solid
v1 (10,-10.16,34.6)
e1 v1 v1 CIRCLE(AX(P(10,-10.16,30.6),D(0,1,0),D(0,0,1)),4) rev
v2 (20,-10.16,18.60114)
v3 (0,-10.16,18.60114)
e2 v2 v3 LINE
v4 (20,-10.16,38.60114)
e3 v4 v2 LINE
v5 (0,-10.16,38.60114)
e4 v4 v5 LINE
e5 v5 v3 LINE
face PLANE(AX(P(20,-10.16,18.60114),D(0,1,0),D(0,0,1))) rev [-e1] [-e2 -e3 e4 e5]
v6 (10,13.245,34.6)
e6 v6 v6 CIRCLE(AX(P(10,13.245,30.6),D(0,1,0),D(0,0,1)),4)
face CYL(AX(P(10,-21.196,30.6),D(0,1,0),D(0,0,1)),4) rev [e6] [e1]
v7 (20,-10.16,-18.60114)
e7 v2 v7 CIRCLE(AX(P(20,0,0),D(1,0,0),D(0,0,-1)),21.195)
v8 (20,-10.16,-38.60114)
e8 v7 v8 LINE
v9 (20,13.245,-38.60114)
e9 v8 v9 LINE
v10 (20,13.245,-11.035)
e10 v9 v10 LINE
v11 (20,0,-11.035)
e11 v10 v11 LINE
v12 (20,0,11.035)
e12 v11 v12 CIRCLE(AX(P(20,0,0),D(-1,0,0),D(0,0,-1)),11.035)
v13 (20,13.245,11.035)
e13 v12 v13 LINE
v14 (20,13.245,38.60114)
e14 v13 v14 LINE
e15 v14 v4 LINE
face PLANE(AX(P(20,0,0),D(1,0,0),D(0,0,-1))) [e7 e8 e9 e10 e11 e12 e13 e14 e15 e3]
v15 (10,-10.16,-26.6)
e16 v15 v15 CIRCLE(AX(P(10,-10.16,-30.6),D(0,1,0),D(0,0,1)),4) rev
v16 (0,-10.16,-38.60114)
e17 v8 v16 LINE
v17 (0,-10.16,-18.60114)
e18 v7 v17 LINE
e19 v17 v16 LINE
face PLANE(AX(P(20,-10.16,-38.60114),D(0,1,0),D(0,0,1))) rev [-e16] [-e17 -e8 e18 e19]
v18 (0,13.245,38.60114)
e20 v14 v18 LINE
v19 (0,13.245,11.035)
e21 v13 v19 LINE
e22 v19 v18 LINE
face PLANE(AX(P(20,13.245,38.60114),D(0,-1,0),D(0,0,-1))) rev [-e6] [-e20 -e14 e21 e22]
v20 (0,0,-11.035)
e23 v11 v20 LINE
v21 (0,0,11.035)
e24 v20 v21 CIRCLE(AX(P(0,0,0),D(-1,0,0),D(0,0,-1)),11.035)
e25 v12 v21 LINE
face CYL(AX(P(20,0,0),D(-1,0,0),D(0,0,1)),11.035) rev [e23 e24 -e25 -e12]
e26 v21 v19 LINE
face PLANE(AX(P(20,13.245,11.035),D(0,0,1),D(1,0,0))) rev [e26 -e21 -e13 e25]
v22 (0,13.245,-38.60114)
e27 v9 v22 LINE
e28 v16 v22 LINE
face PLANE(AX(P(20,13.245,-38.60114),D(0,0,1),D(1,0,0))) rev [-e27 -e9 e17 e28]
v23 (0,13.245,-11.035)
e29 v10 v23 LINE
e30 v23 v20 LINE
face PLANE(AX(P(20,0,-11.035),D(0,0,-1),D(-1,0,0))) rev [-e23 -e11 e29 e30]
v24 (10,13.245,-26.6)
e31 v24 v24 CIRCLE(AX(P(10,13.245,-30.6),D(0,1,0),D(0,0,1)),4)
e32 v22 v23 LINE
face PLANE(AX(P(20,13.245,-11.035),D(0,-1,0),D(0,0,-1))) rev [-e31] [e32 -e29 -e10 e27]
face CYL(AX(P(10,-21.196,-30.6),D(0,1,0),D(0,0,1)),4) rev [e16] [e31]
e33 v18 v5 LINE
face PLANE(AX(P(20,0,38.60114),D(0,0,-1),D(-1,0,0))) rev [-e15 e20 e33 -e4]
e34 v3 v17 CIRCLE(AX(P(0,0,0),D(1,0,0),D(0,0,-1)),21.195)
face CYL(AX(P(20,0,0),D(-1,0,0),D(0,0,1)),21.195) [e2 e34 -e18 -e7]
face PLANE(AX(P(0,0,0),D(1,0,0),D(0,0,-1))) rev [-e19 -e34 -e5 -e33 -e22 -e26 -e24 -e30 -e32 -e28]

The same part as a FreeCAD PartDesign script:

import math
import FreeCAD as App
import Part
import Sketcher
from FreeCAD import Vector
Q = App.Units.Quantity

doc = App.newDocument("Part")
body = doc.addObject("PartDesign::Body", "Body")

# Sketch on YZ plane
sketch1 = doc.addObject("Sketcher::SketchObject", "Sketch")
body.addObject(sketch1)
sketch1.AttachmentSupport = (doc.YZ_Plane, [""])
sketch1.MapMode = "FlatFace"
sketch1.addGeometry(Part.LineSegment(Vector(-10, 39, 0), Vector(-10, 19, 0)), False)
sketch1.addGeometry(Part.ArcOfCircle(Part.Circle(Vector(0, 0, 0), Vector(0, 0, 1), 21), math.radians(119), math.radians(241)), False)
sketch1.addGeometry(Part.LineSegment(Vector(-10, -19, 0), Vector(-10, -39, 0)), False)
sketch1.addGeometry(Part.LineSegment(Vector(-10, -39, 0), Vector(13, -39, 0)), False)
sketch1.addGeometry(Part.LineSegment(Vector(13, -39, 0), Vector(13, -11, 0)), False)
sketch1.addGeometry(Part.LineSegment(Vector(13, -11, 0), Vector(0, -11, 0)), False)
sketch1.addGeometry(Part.ArcOfCircle(Part.Circle(Vector(0, 0, 0), Vector(0, 0, 1), 11), math.radians(90), math.radians(270)), False)
sketch1.addGeometry(Part.LineSegment(Vector(0, 11, 0), Vector(13, 11, 0)), False)
sketch1.addGeometry(Part.LineSegment(Vector(13, 11, 0), Vector(13, 39, 0)), False)
sketch1.addGeometry(Part.LineSegment(Vector(13, 39, 0), Vector(-10, 39, 0)), False)
sketch1.addConstraint(Sketcher.Constraint("Coincident", 0, 2, 1, 1))
sketch1.addConstraint(Sketcher.Constraint("Coincident", 1, 2, 2, 1))
sketch1.addConstraint(Sketcher.Constraint("Coincident", 2, 2, 3, 1))
sketch1.addConstraint(Sketcher.Constraint("Coincident", 3, 2, 4, 1))
sketch1.addConstraint(Sketcher.Constraint("Coincident", 4, 2, 5, 1))
sketch1.addConstraint(Sketcher.Constraint("Tangent", 5, 2, 6, 2))
sketch1.addConstraint(Sketcher.Constraint("Tangent", 6, 1, 7, 1))
sketch1.addConstraint(Sketcher.Constraint("Coincident", 7, 2, 8, 1))
sketch1.addConstraint(Sketcher.Constraint("Coincident", 8, 2, 9, 1))
sketch1.addConstraint(Sketcher.Constraint("Coincident", 9, 2, 0, 1))
sketch1.addConstraint(Sketcher.Constraint("Vertical", 0))
sketch1.addConstraint(Sketcher.Constraint("Vertical", 2))
sketch1.addConstraint(Sketcher.Constraint("Horizontal", 3))
sketch1.addConstraint(Sketcher.Constraint("Vertical", 4))
sketch1.addConstraint(Sketcher.Constraint("Horizontal", 5))
sketch1.addConstraint(Sketcher.Constraint("Horizontal", 7))
sketch1.addConstraint(Sketcher.Constraint("Vertical", 8))
sketch1.addConstraint(Sketcher.Constraint("Horizontal", 9))
sketch1.addConstraint(Sketcher.Constraint("Coincident", 1, 3, -1, 1))
sketch1.addConstraint(Sketcher.Constraint("Coincident", 6, 3, -1, 1))
sketch1.addConstraint(Sketcher.Constraint("Symmetric", 3, 2, 8, 2, -1))
sketch1.addConstraint(Sketcher.Constraint("Vertical", 0, 2, 1, 2))
sketch1.addConstraint(Sketcher.Constraint("DistanceY", 0, 2, 0, 1, Q("20 mm")))
sketch1.addConstraint(Sketcher.Constraint("Radius", 1, Q("21.195 mm")))
sketch1.addConstraint(Sketcher.Constraint("Radius", 6, Q("11.035 mm")))
sketch1.addConstraint(Sketcher.Constraint("DistanceX", 3, 1, 3, 2, Q("23.405 mm")))
sketch1.addConstraint(Sketcher.Constraint("DistanceX", 5, 2, 5, 1, Q("13.245 mm")))
pad1 = doc.addObject("PartDesign::Pad", "Pad")
body.addObject(pad1)
pad1.Profile = sketch1
pad1.Length = 20

# Sketch on XZ plane
sketch2 = doc.addObject("Sketcher::SketchObject", "Sketch001")
body.addObject(sketch2)
sketch2.AttachmentSupport = (doc.XZ_Plane, [""])
sketch2.MapMode = "FlatFace"
sketch2.AttachmentOffset = App.Placement(Vector(0, 0, -13.245), App.Rotation())
sketch2.addGeometry(Part.Circle(Vector(10, 30.6, 0), Vector(0, 0, 1), 4), False)
sketch2.addConstraint(Sketcher.Constraint("Diameter", 0, Q("8 mm")))
sketch2.addConstraint(Sketcher.Constraint("DistanceX", -1, 1, 0, 3, Q("10 mm")))
sketch2.addConstraint(Sketcher.Constraint("DistanceY", -1, 1, 0, 3, Q("30.6 mm")))
pocket1 = doc.addObject("PartDesign::Pocket", "Pocket")
body.addObject(pocket1)
pocket1.Profile = sketch2
pocket1.Type = "UpToFirst"
pocket1.Reversed = True

# Sketch on XZ plane
sketch3 = doc.addObject("Sketcher::SketchObject", "Sketch002")
body.addObject(sketch3)
sketch3.AttachmentSupport = (doc.XZ_Plane, [""])
sketch3.MapMode = "FlatFace"
sketch3.AttachmentOffset = App.Placement(Vector(0, 0, -13.245), App.Rotation())
sketch3.addGeometry(Part.Circle(Vector(10, -30.6, 0), Vector(0, 0, 1), 4), False)
sketch3.addConstraint(Sketcher.Constraint("Diameter", 0, Q("8 mm")))
sketch3.addConstraint(Sketcher.Constraint("DistanceX", -1, 1, 0, 3, Q("10 mm")))
sketch3.addConstraint(Sketcher.Constraint("DistanceY", 0, 3, -1, 1, Q("30.6 mm")))
pocket2 = doc.addObject("PartDesign::Pocket", "Pocket001")
body.addObject(pocket2)
pocket2.Profile = sketch3
pocket2.Type = "UpToFirst"
pocket2.Reversed = True

doc.recompute()
